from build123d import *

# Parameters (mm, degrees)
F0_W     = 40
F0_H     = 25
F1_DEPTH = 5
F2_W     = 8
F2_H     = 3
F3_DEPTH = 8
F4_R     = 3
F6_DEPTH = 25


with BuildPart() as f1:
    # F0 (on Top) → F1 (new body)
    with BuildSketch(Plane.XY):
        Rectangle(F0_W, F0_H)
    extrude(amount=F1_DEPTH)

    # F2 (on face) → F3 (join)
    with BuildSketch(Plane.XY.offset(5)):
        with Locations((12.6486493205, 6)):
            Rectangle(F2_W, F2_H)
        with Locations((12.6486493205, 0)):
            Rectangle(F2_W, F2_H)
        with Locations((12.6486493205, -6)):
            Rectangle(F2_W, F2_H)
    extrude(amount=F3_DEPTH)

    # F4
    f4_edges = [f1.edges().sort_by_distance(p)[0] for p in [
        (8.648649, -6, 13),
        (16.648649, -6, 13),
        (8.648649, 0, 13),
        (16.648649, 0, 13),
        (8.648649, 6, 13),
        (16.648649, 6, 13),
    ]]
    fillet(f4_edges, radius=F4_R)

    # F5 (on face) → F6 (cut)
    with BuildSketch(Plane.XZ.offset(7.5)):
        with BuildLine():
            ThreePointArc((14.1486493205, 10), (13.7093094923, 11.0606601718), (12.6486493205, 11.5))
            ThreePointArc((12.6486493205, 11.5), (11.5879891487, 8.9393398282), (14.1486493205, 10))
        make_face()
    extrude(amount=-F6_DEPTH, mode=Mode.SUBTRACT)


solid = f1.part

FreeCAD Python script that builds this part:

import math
import FreeCAD as App
import Part
import Sketcher
from FreeCAD import Vector
Q = App.Units.Quantity


def edges_at(feature, points):
    """Names of the edges that pass closest to the given points."""
    edges = feature.Shape.Edges
    near = lambda p: min(range(len(edges)), key=lambda i: edges[i].distToShape(Part.Vertex(*p))[0])
    return sorted({f"Edge{near(p) + 1}" for p in points})


def add_polygon(sketch, points):
    """Adds a closed chain of lines whose ends are joined by coincident constraints."""
    first, n = sketch.GeometryCount, len(points)
    for a, b in zip(points, points[1:] + points[:1]):
        sketch.addGeometry(Part.LineSegment(App.Vector(*a, 0), App.Vector(*b, 0)), False)
    for i in range(n):
        sketch.addConstraint(Sketcher.Constraint("Coincident", first + i, 2, first + (i + 1) % n, 1))

doc = App.newDocument("Part")
body = doc.addObject("PartDesign::Body", "Body")

sketch1 = body.newObject("Sketcher::SketchObject", "Sketch")
sketch1.AttachmentSupport = (doc.getObject("XY_Plane"), [""])
sketch1.MapMode = "FlatFace"
add_polygon(sketch1, [(-20, 12.5), (-20, -12.5), (20, -12.5), (20, 12.5)])
sketch1.addConstraint([
    Sketcher.Constraint("Vertical", 0),
    Sketcher.Constraint("Horizontal", 1),
    Sketcher.Constraint("Vertical", 2),
    Sketcher.Constraint("Horizontal", 3),
    Sketcher.Constraint("Symmetric", 0, 2, 2, 2, -1, 1),
    Sketcher.Constraint("DistanceX", 1, 1, 1, 2, Q("40 mm")),
    Sketcher.Constraint("DistanceY", 0, 2, 0, 1, Q("25 mm")),
])
pad1 = body.newObject("PartDesign::Pad", "Pad")
pad1.Profile = sketch1
pad1.Length = 5

sketch2 = body.newObject("Sketcher::SketchObject", "Sketch001")
sketch2.AttachmentSupport = (doc.getObject("XY_Plane"), [""])
sketch2.MapMode = "FlatFace"
sketch2.AttachmentOffset = App.Placement(Vector(0, 0, 5), App.Rotation())
add_polygon(sketch2, [(8.648649, 7.5), (8.648649, 4.5), (16.648649, 4.5), (16.648649, 7.5)])
add_polygon(sketch2, [(8.648649, 1.5), (8.648649, -1.5), (16.648649, -1.5), (16.648649, 1.5)])
add_polygon(sketch2, [(8.648649, -4.5), (8.648649, -7.5), (16.648649, -7.5), (16.648649, -4.5)])
sketch2.addConstraint([
    Sketcher.Constraint("Vertical", 0),
    Sketcher.Constraint("Horizontal", 1),
    Sketcher.Constraint("Vertical", 2),
    Sketcher.Constraint("Horizontal", 3),
    Sketcher.Constraint("Vertical", 4),
    Sketcher.Constraint("Horizontal", 5),
    Sketcher.Constraint("Vertical", 6),
    Sketcher.Constraint("Horizontal", 7),
    Sketcher.Constraint("Vertical", 8),
    Sketcher.Constraint("Horizontal", 9),
    Sketcher.Constraint("Vertical", 10),
    Sketcher.Constraint("Horizontal", 11),
    Sketcher.Constraint("Symmetric", 3, 2, 8, 2, -1),
    Sketcher.Constraint("Symmetric", 1, 2, 10, 2, -1),
    Sketcher.Constraint("Vertical", 3, 2, 4, 2),
    Sketcher.Constraint("Vertical", 2, 2, 5, 2),
    Sketcher.Constraint("Equal", 2, 4),
    Sketcher.Constraint("DistanceX", 1, 1, 1, 2, Q("8 mm")),
    Sketcher.Constraint("DistanceY", 0, 2, 0, 1, Q("3 mm")),
    Sketcher.Constraint("DistanceY", 4, 2, 0, 2, Q("6 mm")),
    Sketcher.Constraint("DistanceY", 8, 2, 4, 2, Q("6 mm")),
    Sketcher.Constraint("DistanceX", -1, 1, 0, 2, Q("8.648649 mm")),
])
pad2 = body.newObject("PartDesign::Pad", "Pad001")
pad2.Profile = sketch2
pad2.Length = 8
doc.recompute()

fillet = body.newObject("PartDesign::Fillet", "Fillet")
fillet.Base = (pad2, edges_at(pad2, [
    (8.649, -6, 13),
    (16.649, -6, 13),
    (8.649, 0, 13),
    (16.649, 0, 13),
    (8.649, 6, 13),
    (16.649, 6, 13),
]))
fillet.Radius = 3

sketch3 = body.newObject("Sketcher::SketchObject", "Sketch002")
sketch3.AttachmentSupport = (doc.getObject("XZ_Plane"), [""])
sketch3.MapMode = "FlatFace"
sketch3.AttachmentOffset = App.Placement(Vector(0, 0, 7.5), App.Rotation())
sketch3.addGeometry([
    Part.ArcOfCircle(Part.Circle(Vector(12.648649, 10, 0), Vector(0, 0, 1), 1.5), math.radians(0), math.radians(90)),
    Part.ArcOfCircle(Part.Circle(Vector(12.648649, 10, 0), Vector(0, 0, 1), 1.5), math.radians(90), math.radians(360)),
], False)
sketch3.addConstraint([
    Sketcher.Constraint("Tangent", 0, 1, 1, 2),
    Sketcher.Constraint("Coincident", 1, 1, 0, 2),
    Sketcher.Constraint("Horizontal", 1, 3, 0, 1),
    Sketcher.Constraint("Vertical", 0, 3, 1, 1),
    Sketcher.Constraint("Radius", 0, Q("1.5 mm")),
    Sketcher.Constraint("DistanceY", -1, 1, 0, 3, Q("10 mm")),
    Sketcher.Constraint("DistanceX", -1, 1, 0, 3, Q("12.648649 mm")),
])
pocket1 = body.newObject("PartDesign::Pocket", "Pocket")
pocket1.Profile = sketch3
pocket1.Length = 25

doc.recompute()
